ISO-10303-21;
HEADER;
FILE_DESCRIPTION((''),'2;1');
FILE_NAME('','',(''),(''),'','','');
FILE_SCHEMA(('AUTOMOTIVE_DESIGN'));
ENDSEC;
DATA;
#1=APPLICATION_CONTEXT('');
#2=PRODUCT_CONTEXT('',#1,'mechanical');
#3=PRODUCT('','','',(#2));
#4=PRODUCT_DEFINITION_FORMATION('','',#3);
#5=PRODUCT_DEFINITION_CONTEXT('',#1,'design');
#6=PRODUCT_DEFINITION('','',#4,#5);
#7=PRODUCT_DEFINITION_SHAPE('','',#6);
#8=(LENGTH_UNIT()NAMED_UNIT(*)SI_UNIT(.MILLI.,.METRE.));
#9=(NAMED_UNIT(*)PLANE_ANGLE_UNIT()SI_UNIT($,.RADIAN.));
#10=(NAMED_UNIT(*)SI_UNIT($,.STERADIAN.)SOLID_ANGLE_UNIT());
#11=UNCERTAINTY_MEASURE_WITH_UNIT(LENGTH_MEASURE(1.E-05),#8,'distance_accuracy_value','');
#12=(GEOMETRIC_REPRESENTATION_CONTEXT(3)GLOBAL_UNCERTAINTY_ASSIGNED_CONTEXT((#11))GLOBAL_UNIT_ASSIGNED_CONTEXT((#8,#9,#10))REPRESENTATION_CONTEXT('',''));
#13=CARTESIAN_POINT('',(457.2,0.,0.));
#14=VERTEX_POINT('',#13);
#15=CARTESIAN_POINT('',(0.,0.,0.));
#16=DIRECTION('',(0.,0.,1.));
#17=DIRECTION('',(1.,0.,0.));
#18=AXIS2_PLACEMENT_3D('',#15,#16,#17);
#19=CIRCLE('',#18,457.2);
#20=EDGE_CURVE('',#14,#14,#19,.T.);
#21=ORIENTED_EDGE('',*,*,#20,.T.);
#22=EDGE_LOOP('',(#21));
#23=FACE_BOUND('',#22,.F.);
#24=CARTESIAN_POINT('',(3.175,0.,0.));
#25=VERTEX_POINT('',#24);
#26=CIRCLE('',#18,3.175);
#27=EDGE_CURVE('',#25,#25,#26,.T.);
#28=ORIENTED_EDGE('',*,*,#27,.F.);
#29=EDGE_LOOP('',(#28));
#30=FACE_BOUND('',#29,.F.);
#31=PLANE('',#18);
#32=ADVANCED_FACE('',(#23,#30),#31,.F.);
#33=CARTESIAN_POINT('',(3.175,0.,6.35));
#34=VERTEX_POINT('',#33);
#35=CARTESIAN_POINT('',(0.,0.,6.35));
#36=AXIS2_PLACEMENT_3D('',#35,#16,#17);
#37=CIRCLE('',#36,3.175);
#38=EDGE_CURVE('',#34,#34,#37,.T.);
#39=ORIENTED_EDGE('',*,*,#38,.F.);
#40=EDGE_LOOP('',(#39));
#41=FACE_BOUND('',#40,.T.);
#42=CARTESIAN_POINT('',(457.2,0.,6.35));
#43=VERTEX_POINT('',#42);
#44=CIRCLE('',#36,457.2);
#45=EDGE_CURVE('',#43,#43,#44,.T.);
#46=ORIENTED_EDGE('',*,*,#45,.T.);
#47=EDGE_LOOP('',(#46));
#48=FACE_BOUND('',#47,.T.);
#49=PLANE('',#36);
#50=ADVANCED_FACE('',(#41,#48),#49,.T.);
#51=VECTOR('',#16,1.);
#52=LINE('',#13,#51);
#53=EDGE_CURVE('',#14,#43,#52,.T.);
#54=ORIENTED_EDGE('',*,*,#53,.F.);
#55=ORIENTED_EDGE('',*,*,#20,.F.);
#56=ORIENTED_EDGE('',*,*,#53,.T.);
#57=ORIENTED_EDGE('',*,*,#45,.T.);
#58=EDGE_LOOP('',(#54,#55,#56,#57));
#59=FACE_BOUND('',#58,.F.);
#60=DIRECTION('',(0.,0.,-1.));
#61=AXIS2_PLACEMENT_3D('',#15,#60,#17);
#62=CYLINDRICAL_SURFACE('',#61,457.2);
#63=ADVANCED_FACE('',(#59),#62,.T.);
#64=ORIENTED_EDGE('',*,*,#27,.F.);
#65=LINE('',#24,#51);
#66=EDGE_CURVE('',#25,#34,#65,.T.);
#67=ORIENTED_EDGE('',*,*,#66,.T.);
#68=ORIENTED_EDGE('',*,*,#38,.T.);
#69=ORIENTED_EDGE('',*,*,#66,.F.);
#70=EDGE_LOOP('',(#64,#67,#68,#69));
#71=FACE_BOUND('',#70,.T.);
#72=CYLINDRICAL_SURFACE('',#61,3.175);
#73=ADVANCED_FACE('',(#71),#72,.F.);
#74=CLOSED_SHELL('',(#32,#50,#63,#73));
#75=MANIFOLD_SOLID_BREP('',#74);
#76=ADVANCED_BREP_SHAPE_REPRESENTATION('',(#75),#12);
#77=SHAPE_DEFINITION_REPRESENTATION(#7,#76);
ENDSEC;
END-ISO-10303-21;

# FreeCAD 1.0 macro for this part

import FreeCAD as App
import Part
import Sketcher
Q = App.Units.Quantity

doc = App.newDocument("Part")
body = doc.addObject("PartDesign::Body", "Body")

sketch1 = body.newObject("Sketcher::SketchObject", "Sketch")
sketch1.AttachmentSupport = (doc.getObject("XY_Plane"), [""])
sketch1.MapMode = "FlatFace"
sketch1.addGeometry(Part.Circle(App.Vector(0, 0, 0), App.Vector(0, 0, 1), 457.2), False)
sketch1.addGeometry(Part.Circle(App.Vector(0, 0, 0), App.Vector(0, 0, 1), 3.175), False)
sketch1.addConstraint(Sketcher.Constraint("Coincident", 0, 3, -1, 1))
sketch1.addConstraint(Sketcher.Constraint("Coincident", 1, 3, -1, 1))
sketch1.addConstraint(Sketcher.Constraint("Diameter", 0, Q("36 in")))
sketch1.addConstraint(Sketcher.Constraint("Diameter", 1, Q("0.25 in")))
pad1 = body.newObject("PartDesign::Pad", "Pad")
pad1.Profile = sketch1
pad1.Length = Q("0.25 in")

doc.recompute()
